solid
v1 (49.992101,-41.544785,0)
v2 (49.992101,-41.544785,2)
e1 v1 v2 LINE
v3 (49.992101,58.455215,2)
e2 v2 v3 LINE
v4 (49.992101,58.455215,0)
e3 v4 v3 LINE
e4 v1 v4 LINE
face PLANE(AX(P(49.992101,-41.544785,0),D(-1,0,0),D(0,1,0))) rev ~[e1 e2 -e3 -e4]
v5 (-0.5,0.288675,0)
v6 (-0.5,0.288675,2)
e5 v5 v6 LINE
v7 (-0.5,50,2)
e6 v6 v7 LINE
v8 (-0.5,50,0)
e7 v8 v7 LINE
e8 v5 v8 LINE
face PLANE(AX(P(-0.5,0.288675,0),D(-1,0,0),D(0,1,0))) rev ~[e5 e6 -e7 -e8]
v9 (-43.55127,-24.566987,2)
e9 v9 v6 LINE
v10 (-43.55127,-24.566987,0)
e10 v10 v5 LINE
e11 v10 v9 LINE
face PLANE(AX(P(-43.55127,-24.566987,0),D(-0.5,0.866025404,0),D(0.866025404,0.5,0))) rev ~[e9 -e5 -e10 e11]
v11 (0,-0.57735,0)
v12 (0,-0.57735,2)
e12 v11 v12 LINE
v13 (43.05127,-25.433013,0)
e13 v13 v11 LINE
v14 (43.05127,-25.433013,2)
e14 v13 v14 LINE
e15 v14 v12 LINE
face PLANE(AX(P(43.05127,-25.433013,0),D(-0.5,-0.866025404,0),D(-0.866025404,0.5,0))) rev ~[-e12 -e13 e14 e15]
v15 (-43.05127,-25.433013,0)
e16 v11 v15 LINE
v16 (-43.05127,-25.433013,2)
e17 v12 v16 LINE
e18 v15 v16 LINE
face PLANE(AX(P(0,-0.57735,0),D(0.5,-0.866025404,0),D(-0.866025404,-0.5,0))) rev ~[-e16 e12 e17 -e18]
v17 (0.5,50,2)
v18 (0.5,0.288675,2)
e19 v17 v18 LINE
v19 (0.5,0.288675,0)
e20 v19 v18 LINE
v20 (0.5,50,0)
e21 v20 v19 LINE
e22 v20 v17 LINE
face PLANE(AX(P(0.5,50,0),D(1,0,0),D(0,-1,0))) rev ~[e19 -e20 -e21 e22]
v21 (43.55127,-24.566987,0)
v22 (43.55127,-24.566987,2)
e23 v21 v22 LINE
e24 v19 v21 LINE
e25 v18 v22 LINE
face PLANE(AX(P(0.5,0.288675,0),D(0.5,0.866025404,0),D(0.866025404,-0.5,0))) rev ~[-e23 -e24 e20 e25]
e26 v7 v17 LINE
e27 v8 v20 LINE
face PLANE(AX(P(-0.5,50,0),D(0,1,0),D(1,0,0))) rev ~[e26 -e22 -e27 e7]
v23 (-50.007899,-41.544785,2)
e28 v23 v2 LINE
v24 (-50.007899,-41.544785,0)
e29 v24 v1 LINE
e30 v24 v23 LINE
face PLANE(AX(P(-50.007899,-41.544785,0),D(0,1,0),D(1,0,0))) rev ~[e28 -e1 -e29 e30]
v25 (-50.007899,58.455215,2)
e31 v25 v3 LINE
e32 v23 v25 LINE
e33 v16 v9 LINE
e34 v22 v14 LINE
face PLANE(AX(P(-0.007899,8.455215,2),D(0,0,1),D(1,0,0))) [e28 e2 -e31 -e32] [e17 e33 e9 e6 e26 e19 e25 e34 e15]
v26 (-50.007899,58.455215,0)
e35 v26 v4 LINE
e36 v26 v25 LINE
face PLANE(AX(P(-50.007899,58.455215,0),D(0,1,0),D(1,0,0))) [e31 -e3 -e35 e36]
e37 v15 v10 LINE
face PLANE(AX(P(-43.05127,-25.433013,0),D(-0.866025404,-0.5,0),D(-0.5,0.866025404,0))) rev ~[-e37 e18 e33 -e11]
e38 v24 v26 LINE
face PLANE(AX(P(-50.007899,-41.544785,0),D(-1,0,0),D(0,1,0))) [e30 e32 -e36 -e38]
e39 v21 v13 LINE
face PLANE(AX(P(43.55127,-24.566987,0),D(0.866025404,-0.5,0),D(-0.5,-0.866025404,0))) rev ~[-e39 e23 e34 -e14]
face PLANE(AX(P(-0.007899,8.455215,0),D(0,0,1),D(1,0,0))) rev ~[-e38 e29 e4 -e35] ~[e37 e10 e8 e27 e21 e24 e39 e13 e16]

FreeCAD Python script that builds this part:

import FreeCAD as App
import Part
import Sketcher
Q = App.Units.Quantity

doc = App.newDocument("Part")
body = doc.addObject("PartDesign::Body", "Body")

# Sketch on XY plane
sketch1 = body.newObject("Sketcher::SketchObject", "Sketch")
sketch1.AttachmentSupport = (doc.getObject("XY_Plane"), [""])
sketch1.MapMode = "FlatFace"
sketch1.addGeometry([
    Part.LineSegment(App.Vector(-50, 58.5, 0), App.Vector(-50, -41.5, 0)),  # 0
    Part.LineSegment(App.Vector(-50, -41.5, 0), App.Vector(50, -41.5, 0)),  # 1
    Part.LineSegment(App.Vector(50, -41.5, 0), App.Vector(50, 58.5, 0)),  # 2
    Part.LineSegment(App.Vector(50, 58.5, 0), App.Vector(-50, 58.5, 0)),  # 3
    Part.LineSegment(App.Vector(-0.5, 0.3, 0), App.Vector(-0.5, 50, 0)),  # 4
    Part.LineSegment(App.Vector(-0.5, 50, 0), App.Vector(0.5, 50, 0)),  # 5
    Part.LineSegment(App.Vector(0.5, 50, 0), App.Vector(0.5, 0.3, 0)),  # 6
    Part.LineSegment(App.Vector(0.5, 0.3, 0), App.Vector(43.6, -24.6, 0)),  # 7
    Part.LineSegment(App.Vector(43.6, -24.6, 0), App.Vector(43.1, -25.4, 0)),  # 8
    Part.LineSegment(App.Vector(43.1, -25.4, 0), App.Vector(0, -0.6, 0)),  # 9
    Part.LineSegment(App.Vector(0, -0.6, 0), App.Vector(-43.1, -25.4, 0)),  # 10
    Part.LineSegment(App.Vector(-43.1, -25.4, 0), App.Vector(-43.6, -24.6, 0)),  # 11
    Part.LineSegment(App.Vector(-43.6, -24.6, 0), App.Vector(-0.5, 0.3, 0)),  # 12
], False)
sketch1.addConstraint([
    Sketcher.Constraint("Coincident", 0, 2, 1, 1),
    Sketcher.Constraint("Coincident", 1, 2, 2, 1),
    Sketcher.Constraint("Coincident", 2, 2, 3, 1),
    Sketcher.Constraint("Coincident", 3, 2, 0, 1),
    Sketcher.Constraint("Coincident", 4, 2, 5, 1),
    Sketcher.Constraint("Coincident", 5, 2, 6, 1),
    Sketcher.Constraint("Coincident", 6, 2, 7, 1),
    Sketcher.Constraint("Coincident", 7, 2, 8, 1),
    Sketcher.Constraint("Coincident", 8, 2, 9, 1),
    Sketcher.Constraint("Coincident", 9, 2, 10, 1),
    Sketcher.Constraint("Coincident", 10, 2, 11, 1),
    Sketcher.Constraint("Coincident", 11, 2, 12, 1),
    Sketcher.Constraint("Coincident", 12, 2, 4, 1),
    Sketcher.Constraint("Vertical", 0),
    Sketcher.Constraint("Horizontal", 1),
    Sketcher.Constraint("Vertical", 2),
    Sketcher.Constraint("Horizontal", 3),
    Sketcher.Constraint("Vertical", 4),
    Sketcher.Constraint("Horizontal", 5),
    Sketcher.Constraint("Vertical", 6),
    Sketcher.Constraint("Symmetric", 8, 2, 10, 2, -2),
    Sketcher.Constraint("Symmetric", 7, 2, 11, 2, -2),
    Sketcher.Constraint("Symmetric", 6, 2, 12, 2, -2),
    Sketcher.Constraint("PointOnObject", 9, 2, -2),
    Sketcher.Constraint("Perpendicular", 7, 8),
    Sketcher.Constraint("Perpendicular", 8, 9),
    Sketcher.Constraint("Equal", 3, 0),
    Sketcher.Constraint("Equal", 7, 9),
    Sketcher.Constraint("DistanceX", 1, 1, 1, 2, 100.0),
    Sketcher.Constraint("DistanceX", 5, 1, 5, 2, 1.0),
    Sketcher.Constraint("Angle", 7, Q("-30 deg")),
    Sketcher.Constraint("DistanceY", -1, 1, 4, 2, 50.0),
    Sketcher.Constraint("DistanceX", 0, 2, -1, 1, 50.007899),
    Sketcher.Constraint("DistanceY", 4, 1, 4, 2, 49.711325),
    Sketcher.Constraint("DistanceX", -1, 1, 7, 2, 43.55127),
    Sketcher.Constraint("DistanceY", 1, 2, 6, 2, 41.83346),
])
pad1 = body.newObject("PartDesign::Pad", "Pad")
pad1.Profile = sketch1
pad1.Length = 2

doc.recompute()
